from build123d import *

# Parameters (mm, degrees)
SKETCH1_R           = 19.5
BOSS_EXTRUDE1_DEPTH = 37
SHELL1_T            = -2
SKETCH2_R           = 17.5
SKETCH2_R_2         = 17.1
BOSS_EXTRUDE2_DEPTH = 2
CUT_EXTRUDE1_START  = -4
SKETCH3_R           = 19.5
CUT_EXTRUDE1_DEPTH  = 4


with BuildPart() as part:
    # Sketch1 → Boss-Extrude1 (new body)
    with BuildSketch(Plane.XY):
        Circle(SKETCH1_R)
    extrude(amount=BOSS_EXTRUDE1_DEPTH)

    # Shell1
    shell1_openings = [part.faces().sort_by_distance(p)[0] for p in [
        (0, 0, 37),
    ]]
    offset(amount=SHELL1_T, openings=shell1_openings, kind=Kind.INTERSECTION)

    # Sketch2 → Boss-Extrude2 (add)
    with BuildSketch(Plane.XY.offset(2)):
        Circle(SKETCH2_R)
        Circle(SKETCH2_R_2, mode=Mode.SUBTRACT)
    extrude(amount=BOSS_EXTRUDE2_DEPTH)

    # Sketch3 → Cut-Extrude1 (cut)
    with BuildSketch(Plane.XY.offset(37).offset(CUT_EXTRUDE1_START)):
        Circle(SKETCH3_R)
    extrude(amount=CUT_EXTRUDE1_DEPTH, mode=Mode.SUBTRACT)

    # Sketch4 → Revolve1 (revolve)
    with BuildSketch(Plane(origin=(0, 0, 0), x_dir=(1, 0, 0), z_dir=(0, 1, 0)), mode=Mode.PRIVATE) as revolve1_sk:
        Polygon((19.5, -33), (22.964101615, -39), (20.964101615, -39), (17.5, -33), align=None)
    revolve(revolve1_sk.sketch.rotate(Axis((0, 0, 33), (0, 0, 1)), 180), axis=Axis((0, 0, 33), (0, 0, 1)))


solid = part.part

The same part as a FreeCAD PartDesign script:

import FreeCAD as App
import Part
import Sketcher

V = App.Vector
Q = App.Units.Quantity


def faces_at(feature, points):
    """Names of the faces that lie closest to the given points."""
    faces = feature.Shape.Faces
    near = lambda p: min(range(len(faces)), key=lambda i: faces[i].distToShape(Part.Vertex(*p))[0])
    return sorted({f"Face{near(p) + 1}" for p in points})

doc = App.newDocument("Part")
params = doc.addObject("Spreadsheet::Sheet", "Params")
for row, (alias, value) in enumerate([
    ("sketch1_diameter", "39 mm"),
    ("pad1_length", "37 mm"),
    ("thickness_wall", "2 mm"),
    ("sketch2_diameter", "35 mm"),
    ("sketch2_diameter2", "34.2 mm"),
    ("pad2_length", "2 mm"),
    ("sketch3_diameter", "39 mm"),
    ("pocket1_length", "4 mm"),
    ("sketch4_width", "2 mm"),
    ("revolution_angle", "360 deg"),
], start=1):
    params.set(f"A{row}", alias)
    params.set(f"B{row}", "=" + value)
    params.setAlias(f"B{row}", alias)

body = doc.addObject("PartDesign::Body", "Body")

sketch1 = body.newObject("Sketcher::SketchObject", "Sketch")
sketch1.AttachmentSupport = (doc.getObject("XY_Plane"), [""])
sketch1.MapMode = "FlatFace"
sketch1.addGeometry(Part.Circle(V(0, 0, 0), V(0, 0, 1), 19.5), False)
sketch1.addConstraint([
    Sketcher.Constraint("Coincident", 0, 3, -1, 1),
    Sketcher.Constraint("Diameter", 0, 39.0),
])
sketch1.setExpression("Constraints[1]", "Params.sketch1_diameter")
pad1 = body.newObject("PartDesign::Pad", "Pad")
pad1.Profile = sketch1
pad1.setExpression("Length", "Params.pad1_length")
doc.recompute()

thickness = body.newObject("PartDesign::Thickness", "Thickness")
thickness.Base = (pad1, faces_at(pad1, [(0, 0, 37)]))
thickness.setExpression("Value", "Params.thickness_wall")
thickness.Reversed = True
thickness.Join = "Intersection"

sketch2 = body.newObject("Sketcher::SketchObject", "Sketch001")
sketch2.AttachmentSupport = (doc.getObject("XY_Plane"), [""])
sketch2.MapMode = "FlatFace"
sketch2.AttachmentOffset = App.Placement(V(0, 0, 2), App.Rotation())
sketch2.addGeometry([
    Part.Circle(V(0, 0, 0), V(0, 0, 1), 17.5),
    Part.Circle(V(0, 0, 0), V(0, 0, 1), 17.1),
], False)
sketch2.addConstraint([
    Sketcher.Constraint("Coincident", 0, 3, -1, 1),
    Sketcher.Constraint("Coincident", 1, 3, -1, 1),
    Sketcher.Constraint("Diameter", 0, 35.0),
    Sketcher.Constraint("Diameter", 1, 34.2),
])
sketch2.setExpression("Constraints[2]", "Params.sketch2_diameter")
sketch2.setExpression("Constraints[3]", "Params.sketch2_diameter2")
pad2 = body.newObject("PartDesign::Pad", "Pad001")
pad2.Profile = sketch2
pad2.setExpression("Length", "Params.pad2_length")

sketch3 = body.newObject("Sketcher::SketchObject", "Sketch002")
sketch3.AttachmentSupport = (doc.getObject("XY_Plane"), [""])
sketch3.MapMode = "FlatFace"
sketch3.AttachmentOffset = App.Placement(V(0, 0, 33), App.Rotation())
sketch3.addGeometry(Part.Circle(V(0, 0, 0), V(0, 0, 1), 19.5), False)
sketch3.addConstraint([
    Sketcher.Constraint("Coincident", 0, 3, -1, 1),
    Sketcher.Constraint("Diameter", 0, 39.0),
])
sketch3.setExpression("Constraints[1]", "Params.sketch3_diameter")
pocket1 = body.newObject("PartDesign::Pocket", "Pocket")
pocket1.Profile = sketch3
pocket1.setExpression("Length", "Params.pocket1_length")
pocket1.Reversed = True

sketch4 = body.newObject("Sketcher::SketchObject", "Sketch003")
sketch4.AttachmentSupport = (doc.getObject("XZ_Plane"), [""])
sketch4.MapMode = "FlatFace"
sketch4.addGeometry([
    Part.LineSegment(V(22.964102, 39, 0), V(19.5, 33, 0)),
    Part.LineSegment(V(19.5, 33, 0), V(17.5, 33, 0)),
    Part.LineSegment(V(17.5, 33, 0), V(20.964102, 39, 0)),
    Part.LineSegment(V(20.964102, 39, 0), V(22.964102, 39, 0)),
], False)
sketch4.addConstraint([
    Sketcher.Constraint("Coincident", 0, 2, 1, 1),
    Sketcher.Constraint("Coincident", 1, 2, 2, 1),
    Sketcher.Constraint("Coincident", 2, 2, 3, 1),
    Sketcher.Constraint("Coincident", 3, 2, 0, 1),
    Sketcher.Constraint("Horizontal", 1),
    Sketcher.Constraint("Horizontal", 3),
    Sketcher.Constraint("Parallel", 0, 2),
    Sketcher.Constraint("DistanceX", 1, 2, 1, 1, 2.0),
    Sketcher.Constraint("Angle", 0, Q("-120 deg")),
    Sketcher.Constraint("DistanceY", -1, 1, 0, 2, 33.0),
    Sketcher.Constraint("DistanceY", -1, 1, 2, 2, 39.0),
    Sketcher.Constraint("DistanceX", -1, 1, 0, 2, 19.5),
])
sketch4.setExpression("Constraints[7]", "Params.sketch4_width")
revolution = body.newObject("PartDesign::Revolution", "Revolution")
revolution.Profile = sketch4
revolution.ReferenceAxis = (sketch4, ["V_Axis"])
revolution.setExpression("Angle", "Params.revolution_angle")

doc.recompute()
